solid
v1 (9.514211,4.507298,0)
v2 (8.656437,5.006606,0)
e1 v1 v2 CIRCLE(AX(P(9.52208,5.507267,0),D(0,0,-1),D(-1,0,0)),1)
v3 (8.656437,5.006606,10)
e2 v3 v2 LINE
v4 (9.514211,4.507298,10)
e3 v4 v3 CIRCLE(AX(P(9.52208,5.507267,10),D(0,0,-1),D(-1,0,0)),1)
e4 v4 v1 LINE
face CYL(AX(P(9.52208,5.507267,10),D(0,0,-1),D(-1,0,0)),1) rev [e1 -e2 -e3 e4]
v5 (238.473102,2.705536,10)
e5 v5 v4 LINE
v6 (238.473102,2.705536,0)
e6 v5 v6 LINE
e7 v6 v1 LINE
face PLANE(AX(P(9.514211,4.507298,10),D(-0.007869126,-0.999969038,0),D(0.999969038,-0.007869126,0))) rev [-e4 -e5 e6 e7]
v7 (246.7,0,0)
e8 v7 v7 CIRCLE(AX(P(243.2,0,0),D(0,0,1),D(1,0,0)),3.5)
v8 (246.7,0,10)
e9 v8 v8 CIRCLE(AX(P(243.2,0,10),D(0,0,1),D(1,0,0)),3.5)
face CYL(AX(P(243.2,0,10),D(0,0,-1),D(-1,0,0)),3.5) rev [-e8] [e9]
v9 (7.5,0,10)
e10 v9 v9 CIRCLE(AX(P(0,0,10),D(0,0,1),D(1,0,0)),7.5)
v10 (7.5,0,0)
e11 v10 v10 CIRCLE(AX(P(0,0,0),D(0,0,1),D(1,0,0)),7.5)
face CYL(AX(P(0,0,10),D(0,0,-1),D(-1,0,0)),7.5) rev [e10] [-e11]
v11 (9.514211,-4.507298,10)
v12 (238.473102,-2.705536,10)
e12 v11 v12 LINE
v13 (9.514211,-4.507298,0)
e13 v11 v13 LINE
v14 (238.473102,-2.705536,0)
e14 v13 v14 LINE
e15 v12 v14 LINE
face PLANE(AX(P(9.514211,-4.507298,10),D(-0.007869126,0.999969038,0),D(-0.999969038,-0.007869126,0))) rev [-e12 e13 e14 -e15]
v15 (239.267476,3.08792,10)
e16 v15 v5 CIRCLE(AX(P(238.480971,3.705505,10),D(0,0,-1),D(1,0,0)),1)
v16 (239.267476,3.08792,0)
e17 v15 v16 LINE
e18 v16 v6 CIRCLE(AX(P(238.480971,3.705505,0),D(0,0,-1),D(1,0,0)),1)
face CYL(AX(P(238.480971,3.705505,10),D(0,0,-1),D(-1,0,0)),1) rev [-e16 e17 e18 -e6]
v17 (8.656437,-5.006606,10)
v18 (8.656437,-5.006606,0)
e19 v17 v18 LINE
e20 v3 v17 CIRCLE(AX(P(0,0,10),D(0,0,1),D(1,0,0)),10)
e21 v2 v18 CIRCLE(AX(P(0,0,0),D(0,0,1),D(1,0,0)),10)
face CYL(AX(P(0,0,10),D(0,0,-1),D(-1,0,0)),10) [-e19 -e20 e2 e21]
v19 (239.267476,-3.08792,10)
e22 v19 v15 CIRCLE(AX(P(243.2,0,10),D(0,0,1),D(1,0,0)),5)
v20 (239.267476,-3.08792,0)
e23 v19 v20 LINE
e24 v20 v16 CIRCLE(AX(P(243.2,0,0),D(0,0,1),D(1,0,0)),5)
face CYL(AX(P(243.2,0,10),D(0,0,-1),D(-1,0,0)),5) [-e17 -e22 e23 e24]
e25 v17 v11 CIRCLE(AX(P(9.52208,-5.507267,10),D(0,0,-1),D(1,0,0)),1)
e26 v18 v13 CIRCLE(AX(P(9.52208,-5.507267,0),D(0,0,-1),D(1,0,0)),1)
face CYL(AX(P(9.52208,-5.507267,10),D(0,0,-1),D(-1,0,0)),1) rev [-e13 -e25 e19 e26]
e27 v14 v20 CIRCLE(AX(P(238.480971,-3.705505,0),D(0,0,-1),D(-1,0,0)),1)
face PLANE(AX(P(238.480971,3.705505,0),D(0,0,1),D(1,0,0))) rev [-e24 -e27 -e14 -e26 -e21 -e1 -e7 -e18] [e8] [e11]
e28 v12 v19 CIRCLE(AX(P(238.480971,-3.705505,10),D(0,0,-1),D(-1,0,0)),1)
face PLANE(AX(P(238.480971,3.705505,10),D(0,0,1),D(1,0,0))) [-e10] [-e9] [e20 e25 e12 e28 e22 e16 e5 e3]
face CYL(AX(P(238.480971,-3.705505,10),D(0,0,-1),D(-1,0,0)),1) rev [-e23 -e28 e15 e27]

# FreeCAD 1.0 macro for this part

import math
import FreeCAD as App
import Part
import Sketcher

V = App.Vector

doc = App.newDocument("Part")
body = doc.addObject("PartDesign::Body", "Body")

# Sketch on XY plane
sketch1 = doc.addObject("Sketcher::SketchObject", "Sketch")
body.addObject(sketch1)
sketch1.AttachmentSupport = (doc.XY_Plane, [""])
sketch1.MapMode = "FlatFace"
sketch1.addGeometry([
    Part.LineSegment(V(9.5, -4.5, 0), V(238.5, -2.7, 0)),  # 0
    Part.ArcOfCircle(Part.Circle(V(238.5, -3.7, 0), V(0, 0, 1), 1), math.radians(38), math.radians(90)),  # 1
    Part.ArcOfCircle(Part.Circle(V(243.2, 0, 0), V(0, 0, 1), 5), math.radians(-142), math.radians(142)),  # 2
    Part.ArcOfCircle(Part.Circle(V(238.5, 3.7, 0), V(0, 0, 1), 1), math.radians(-90), math.radians(-38)),  # 3
    Part.LineSegment(V(238.5, 2.7, 0), V(9.5, 4.5, 0)),  # 4
    Part.ArcOfCircle(Part.Circle(V(9.5, 5.5, 0), V(0, 0, 1), 1), math.radians(-150), math.radians(-90)),  # 5
    Part.ArcOfCircle(Part.Circle(V(0, 0, 0), V(0, 0, 1), 10), math.radians(30), math.radians(330)),  # 6
    Part.ArcOfCircle(Part.Circle(V(9.5, -5.5, 0), V(0, 0, 1), 1), math.radians(90), math.radians(150)),  # 7
    Part.Circle(V(0, 0, 0), V(0, 0, 1), 7.5),  # 8
    Part.Circle(V(243.2, 0, 0), V(0, 0, 1), 3.5),  # 9
], False)
sketch1.addConstraint([
    Sketcher.Constraint("Tangent", 0, 2, 1, 2),
    Sketcher.Constraint("Tangent", 1, 1, 2, 1),
    Sketcher.Constraint("Tangent", 2, 2, 3, 2),
    Sketcher.Constraint("Tangent", 3, 1, 4, 1),
    Sketcher.Constraint("Tangent", 4, 2, 5, 2),
    Sketcher.Constraint("Tangent", 5, 1, 6, 1),
    Sketcher.Constraint("Tangent", 6, 2, 7, 2),
    Sketcher.Constraint("Tangent", 7, 1, 0, 1),
    Sketcher.Constraint("Coincident", 6, 3, -1, 1),
    Sketcher.Constraint("Coincident", 8, 3, -1, 1),
    Sketcher.Constraint("Coincident", 9, 3, 2, 3),
    Sketcher.Constraint("Equal", 1, 3),
    Sketcher.Constraint("Equal", 3, 5),
    Sketcher.Constraint("Equal", 5, 7),
    Sketcher.Constraint("Symmetric", 1, 3, 3, 3, -1),
    Sketcher.Constraint("Vertical", 5, 3, 7, 3),
    Sketcher.Constraint("Diameter", 8, 15.0),
    Sketcher.Constraint("Diameter", 9, 7.0),
    Sketcher.Constraint("Radius", 1, 1.0),
    Sketcher.Constraint("Radius", 2, 5.0),
    Sketcher.Constraint("Radius", 6, 10.0),
    Sketcher.Constraint("DistanceX", -1, 1, 2, 3, 243.2),
    Sketcher.Constraint("DistanceX", -1, 1, 0, 2, 238.473102),
    Sketcher.Constraint("Distance", 0, 228.96598),
])
pad1 = doc.addObject("PartDesign::Pad", "Pad")
body.addObject(pad1)
pad1.Profile = sketch1
pad1.Length = 10

doc.recompute()
